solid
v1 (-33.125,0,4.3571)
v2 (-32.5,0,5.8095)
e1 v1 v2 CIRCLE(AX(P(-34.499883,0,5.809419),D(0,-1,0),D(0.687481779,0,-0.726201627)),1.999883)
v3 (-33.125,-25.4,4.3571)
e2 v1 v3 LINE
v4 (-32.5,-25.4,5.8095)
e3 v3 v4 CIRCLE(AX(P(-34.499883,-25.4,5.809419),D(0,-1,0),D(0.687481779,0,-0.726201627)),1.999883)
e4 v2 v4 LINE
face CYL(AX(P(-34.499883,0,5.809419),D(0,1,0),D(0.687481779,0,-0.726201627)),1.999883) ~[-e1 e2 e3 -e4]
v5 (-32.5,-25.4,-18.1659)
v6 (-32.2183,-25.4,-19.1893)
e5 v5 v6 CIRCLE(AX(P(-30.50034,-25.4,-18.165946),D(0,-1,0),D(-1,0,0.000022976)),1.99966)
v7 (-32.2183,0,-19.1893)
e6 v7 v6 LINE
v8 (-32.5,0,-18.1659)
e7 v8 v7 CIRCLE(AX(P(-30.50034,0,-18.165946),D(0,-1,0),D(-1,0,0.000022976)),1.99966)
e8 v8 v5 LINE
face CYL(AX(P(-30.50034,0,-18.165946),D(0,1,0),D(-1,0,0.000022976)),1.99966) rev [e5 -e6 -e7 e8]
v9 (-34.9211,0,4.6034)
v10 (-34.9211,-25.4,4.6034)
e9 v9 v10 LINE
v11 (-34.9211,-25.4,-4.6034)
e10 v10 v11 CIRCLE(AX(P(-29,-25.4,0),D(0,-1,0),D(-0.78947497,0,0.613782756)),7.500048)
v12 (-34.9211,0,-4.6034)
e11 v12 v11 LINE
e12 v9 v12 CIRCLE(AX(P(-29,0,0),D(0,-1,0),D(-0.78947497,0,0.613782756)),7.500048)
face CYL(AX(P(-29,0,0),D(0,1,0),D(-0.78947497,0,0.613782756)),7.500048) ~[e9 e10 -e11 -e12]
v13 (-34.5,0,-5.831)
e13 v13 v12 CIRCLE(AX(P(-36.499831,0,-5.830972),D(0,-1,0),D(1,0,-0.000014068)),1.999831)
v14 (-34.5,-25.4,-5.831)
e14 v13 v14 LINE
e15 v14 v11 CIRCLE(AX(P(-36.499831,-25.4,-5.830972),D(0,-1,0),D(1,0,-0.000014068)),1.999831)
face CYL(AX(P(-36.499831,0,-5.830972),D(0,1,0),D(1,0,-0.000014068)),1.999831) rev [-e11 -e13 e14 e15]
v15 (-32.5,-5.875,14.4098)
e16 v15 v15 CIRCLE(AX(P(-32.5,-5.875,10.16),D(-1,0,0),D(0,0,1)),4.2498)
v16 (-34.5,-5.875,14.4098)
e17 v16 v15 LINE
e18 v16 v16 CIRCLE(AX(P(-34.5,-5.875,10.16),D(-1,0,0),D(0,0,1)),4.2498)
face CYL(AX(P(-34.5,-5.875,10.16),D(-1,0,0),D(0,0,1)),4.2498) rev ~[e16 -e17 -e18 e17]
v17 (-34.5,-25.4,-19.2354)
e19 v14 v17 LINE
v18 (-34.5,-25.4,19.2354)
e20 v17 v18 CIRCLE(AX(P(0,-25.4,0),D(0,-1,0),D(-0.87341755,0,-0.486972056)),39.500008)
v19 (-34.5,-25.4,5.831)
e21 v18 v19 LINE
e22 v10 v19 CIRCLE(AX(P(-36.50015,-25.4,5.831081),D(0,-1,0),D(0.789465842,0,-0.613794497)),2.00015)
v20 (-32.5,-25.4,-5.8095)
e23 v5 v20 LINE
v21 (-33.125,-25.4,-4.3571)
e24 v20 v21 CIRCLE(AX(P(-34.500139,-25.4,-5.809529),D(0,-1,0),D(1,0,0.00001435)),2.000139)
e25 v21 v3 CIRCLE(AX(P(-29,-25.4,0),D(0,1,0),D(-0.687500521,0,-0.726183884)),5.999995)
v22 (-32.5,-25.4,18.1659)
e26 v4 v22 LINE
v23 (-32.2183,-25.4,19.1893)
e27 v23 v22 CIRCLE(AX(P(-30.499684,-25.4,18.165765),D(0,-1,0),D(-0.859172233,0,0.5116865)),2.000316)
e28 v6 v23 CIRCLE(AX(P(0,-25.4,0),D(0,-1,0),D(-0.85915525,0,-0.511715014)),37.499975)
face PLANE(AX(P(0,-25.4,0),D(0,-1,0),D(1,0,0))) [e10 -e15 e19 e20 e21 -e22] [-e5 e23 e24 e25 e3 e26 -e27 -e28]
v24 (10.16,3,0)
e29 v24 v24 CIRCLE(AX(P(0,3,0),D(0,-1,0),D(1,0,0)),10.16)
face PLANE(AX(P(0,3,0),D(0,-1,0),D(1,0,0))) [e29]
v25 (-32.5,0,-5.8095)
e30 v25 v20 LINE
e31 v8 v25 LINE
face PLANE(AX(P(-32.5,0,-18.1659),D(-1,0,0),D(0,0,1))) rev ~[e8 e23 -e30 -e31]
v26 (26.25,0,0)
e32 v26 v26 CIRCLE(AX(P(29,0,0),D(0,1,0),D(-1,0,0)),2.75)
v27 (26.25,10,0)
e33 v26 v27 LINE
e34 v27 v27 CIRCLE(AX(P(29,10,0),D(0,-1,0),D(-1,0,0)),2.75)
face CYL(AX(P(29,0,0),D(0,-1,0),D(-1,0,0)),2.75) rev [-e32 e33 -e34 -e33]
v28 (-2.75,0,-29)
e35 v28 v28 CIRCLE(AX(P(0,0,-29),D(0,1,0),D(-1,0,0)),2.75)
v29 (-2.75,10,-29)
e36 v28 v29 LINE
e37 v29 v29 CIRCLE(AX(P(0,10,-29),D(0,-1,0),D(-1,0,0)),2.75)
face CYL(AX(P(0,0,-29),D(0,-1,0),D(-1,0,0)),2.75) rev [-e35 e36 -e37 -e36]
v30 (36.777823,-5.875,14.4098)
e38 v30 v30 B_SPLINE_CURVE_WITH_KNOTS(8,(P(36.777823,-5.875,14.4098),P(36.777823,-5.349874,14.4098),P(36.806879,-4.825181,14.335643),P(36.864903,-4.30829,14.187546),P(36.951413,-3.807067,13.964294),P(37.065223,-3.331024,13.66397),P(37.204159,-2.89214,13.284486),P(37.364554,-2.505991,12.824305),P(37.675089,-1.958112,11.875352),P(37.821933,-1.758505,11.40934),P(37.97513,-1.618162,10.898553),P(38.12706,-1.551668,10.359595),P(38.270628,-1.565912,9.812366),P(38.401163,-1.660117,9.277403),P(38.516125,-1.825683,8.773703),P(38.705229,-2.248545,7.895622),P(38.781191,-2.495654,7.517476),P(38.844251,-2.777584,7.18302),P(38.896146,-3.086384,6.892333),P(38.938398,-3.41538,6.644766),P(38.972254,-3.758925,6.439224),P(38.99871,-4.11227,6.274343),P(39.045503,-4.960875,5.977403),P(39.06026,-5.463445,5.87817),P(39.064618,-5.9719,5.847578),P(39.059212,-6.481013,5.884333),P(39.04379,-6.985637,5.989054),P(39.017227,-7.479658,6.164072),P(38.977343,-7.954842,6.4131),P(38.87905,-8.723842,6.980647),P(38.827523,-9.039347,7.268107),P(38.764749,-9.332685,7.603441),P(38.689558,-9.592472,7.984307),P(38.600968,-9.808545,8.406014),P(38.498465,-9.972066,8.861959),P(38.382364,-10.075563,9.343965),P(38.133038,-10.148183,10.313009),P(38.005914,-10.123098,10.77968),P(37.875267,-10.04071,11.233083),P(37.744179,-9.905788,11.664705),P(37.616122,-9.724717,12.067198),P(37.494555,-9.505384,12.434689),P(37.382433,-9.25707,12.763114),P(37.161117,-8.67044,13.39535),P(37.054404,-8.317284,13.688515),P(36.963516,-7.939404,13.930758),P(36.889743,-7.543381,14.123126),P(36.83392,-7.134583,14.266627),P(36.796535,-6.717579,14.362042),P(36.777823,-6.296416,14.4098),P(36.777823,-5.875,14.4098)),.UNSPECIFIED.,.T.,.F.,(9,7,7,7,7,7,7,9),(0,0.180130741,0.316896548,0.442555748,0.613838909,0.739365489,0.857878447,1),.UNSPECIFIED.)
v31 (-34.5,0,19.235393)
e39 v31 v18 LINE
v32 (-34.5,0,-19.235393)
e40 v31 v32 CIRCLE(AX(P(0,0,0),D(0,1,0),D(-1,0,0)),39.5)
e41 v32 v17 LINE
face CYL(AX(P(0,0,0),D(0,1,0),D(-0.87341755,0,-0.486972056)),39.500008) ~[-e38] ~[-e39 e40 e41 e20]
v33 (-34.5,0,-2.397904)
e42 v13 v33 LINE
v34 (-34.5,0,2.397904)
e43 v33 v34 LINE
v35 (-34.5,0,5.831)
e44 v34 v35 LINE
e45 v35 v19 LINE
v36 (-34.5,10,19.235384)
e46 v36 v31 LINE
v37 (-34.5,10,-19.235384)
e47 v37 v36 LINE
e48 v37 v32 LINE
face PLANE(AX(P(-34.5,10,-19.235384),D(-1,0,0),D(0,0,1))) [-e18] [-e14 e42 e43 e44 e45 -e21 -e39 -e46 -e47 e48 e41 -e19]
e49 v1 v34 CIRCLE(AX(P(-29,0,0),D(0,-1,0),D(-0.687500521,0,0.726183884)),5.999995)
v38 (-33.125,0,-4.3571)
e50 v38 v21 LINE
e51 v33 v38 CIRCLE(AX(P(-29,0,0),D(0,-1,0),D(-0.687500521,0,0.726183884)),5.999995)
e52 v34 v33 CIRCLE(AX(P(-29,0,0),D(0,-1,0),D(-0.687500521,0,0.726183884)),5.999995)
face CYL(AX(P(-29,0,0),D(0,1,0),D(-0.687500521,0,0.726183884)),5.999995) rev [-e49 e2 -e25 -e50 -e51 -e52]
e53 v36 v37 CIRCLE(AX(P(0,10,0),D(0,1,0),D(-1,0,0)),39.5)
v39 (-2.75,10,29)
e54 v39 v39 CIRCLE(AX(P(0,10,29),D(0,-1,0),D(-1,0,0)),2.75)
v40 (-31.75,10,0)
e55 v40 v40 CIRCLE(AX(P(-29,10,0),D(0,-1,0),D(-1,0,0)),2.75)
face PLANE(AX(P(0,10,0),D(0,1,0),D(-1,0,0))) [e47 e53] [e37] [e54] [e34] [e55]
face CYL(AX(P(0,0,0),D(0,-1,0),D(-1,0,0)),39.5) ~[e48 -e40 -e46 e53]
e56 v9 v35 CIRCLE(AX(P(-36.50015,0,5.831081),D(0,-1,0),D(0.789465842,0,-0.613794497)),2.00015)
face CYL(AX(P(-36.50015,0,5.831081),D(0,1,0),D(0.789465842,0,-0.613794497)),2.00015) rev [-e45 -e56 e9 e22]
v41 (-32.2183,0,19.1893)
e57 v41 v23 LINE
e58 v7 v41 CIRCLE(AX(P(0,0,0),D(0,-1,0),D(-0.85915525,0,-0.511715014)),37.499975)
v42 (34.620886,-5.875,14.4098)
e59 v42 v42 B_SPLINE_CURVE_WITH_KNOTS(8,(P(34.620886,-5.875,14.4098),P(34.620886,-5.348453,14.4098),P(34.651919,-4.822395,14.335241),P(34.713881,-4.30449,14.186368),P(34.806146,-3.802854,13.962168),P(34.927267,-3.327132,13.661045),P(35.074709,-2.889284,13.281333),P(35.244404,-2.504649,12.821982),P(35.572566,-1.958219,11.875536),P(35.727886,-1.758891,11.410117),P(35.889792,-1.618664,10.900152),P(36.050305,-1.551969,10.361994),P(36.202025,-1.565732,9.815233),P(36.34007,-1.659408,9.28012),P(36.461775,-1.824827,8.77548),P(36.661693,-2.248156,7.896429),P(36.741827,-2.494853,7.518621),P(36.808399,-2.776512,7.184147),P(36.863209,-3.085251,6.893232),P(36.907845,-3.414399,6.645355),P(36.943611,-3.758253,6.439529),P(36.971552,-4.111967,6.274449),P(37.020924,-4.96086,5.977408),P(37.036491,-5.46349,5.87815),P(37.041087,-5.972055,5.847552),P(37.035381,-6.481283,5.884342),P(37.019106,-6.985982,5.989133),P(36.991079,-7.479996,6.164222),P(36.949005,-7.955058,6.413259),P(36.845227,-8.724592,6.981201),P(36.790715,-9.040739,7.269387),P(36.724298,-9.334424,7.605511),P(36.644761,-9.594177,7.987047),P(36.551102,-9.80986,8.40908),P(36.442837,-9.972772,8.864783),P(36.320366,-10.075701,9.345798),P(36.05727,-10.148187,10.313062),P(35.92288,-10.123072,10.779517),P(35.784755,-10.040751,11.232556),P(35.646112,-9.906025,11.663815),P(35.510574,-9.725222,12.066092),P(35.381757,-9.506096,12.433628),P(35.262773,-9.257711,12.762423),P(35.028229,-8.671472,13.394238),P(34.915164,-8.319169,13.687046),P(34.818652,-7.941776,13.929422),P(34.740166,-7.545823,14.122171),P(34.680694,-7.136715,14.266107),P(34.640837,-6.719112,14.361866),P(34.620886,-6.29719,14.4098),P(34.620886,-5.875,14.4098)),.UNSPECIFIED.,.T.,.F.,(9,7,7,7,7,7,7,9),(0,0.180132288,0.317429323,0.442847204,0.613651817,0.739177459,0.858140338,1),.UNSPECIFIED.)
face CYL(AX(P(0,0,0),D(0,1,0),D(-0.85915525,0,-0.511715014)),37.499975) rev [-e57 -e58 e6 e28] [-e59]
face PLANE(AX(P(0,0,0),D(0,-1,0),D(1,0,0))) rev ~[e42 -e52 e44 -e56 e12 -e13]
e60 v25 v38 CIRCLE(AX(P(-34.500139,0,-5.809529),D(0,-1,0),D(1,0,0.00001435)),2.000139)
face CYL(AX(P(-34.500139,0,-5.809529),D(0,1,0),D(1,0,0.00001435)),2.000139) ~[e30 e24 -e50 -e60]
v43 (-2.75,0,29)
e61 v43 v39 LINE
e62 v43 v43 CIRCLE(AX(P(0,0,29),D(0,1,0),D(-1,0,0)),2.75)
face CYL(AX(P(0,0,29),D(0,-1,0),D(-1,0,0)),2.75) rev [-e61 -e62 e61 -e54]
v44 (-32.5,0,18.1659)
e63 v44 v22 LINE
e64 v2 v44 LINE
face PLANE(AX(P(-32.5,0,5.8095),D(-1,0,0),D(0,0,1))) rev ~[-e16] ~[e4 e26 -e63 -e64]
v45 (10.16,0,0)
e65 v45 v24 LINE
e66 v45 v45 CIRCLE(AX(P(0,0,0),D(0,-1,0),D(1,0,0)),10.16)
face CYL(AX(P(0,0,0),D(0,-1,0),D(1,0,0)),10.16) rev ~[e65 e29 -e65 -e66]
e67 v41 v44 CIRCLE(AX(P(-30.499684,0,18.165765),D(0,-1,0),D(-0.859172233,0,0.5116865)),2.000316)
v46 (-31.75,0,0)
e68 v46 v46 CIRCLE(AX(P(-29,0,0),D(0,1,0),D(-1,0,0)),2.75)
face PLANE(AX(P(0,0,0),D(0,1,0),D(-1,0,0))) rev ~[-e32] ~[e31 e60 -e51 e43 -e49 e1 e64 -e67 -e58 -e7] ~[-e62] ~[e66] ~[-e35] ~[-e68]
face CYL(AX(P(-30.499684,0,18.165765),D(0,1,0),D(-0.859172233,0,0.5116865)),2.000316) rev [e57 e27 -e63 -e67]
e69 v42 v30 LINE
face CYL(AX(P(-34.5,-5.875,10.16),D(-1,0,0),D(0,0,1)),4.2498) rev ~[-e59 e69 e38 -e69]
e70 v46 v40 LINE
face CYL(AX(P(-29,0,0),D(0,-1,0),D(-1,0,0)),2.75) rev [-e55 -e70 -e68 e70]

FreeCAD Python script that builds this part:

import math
import FreeCAD as App
import Part
import Sketcher
from FreeCAD import Vector
Q = App.Units.Quantity

doc = App.newDocument("Part")
body = doc.addObject("PartDesign::Body", "Body")

# Sketch on XZ plane
sketch1 = body.newObject("Sketcher::SketchObject", "Sketch")
sketch1.AttachmentSupport = (doc.getObject("XZ_Plane"), [""])
sketch1.MapMode = "FlatFace"
sketch1.addGeometry(Part.Circle(Vector(0, 0, 0), Vector(0, 0, 1), 39.5), False)
sketch1.addGeometry(Part.Circle(Vector(0, 29, 0), Vector(0, 0, 1), 2.8), False)
sketch1.addGeometry(Part.Circle(Vector(29, 0, 0), Vector(0, 0, 1), 2.8), False)
sketch1.addGeometry(Part.Circle(Vector(0, -29, 0), Vector(0, 0, 1), 2.8), False)
sketch1.addGeometry(Part.Circle(Vector(-29, 0, 0), Vector(0, 0, 1), 2.8), False)
sketch1.addConstraint(Sketcher.Constraint("Coincident", 0, 3, -1, 1))
sketch1.addConstraint(Sketcher.Constraint("Equal", 1, 2))
sketch1.addConstraint(Sketcher.Constraint("Equal", 2, 3))
sketch1.addConstraint(Sketcher.Constraint("Equal", 3, 4))
sketch1.addConstraint(Sketcher.Constraint("Symmetric", 1, 3, 3, 3, -1, 1))
sketch1.addConstraint(Sketcher.Constraint("Symmetric", 2, 3, 4, 3, -1, 1))
sketch1.addConstraint(Sketcher.Constraint("PointOnObject", 1, 3, -2))
sketch1.addConstraint(Sketcher.Constraint("PointOnObject", 2, 3, -1))
sketch1.addConstraint(Sketcher.Constraint("Diameter", 0, Q("79 mm")))
sketch1.addConstraint(Sketcher.Constraint("Diameter", 1, Q("5.5 mm")))
sketch1.addConstraint(Sketcher.Constraint("DistanceY", 3, 3, 1, 3, Q("58 mm")))
sketch1.addConstraint(Sketcher.Constraint("DistanceX", 4, 3, 2, 3, Q("58 mm")))
pad1 = body.newObject("PartDesign::Pad", "Pad")
pad1.Profile = sketch1
pad1.Length = 10
pad1.Reversed = True

# Sketch on XZ plane
sketch2 = body.newObject("Sketcher::SketchObject", "Sketch001")
sketch2.AttachmentSupport = (doc.getObject("XZ_Plane"), [""])
sketch2.MapMode = "FlatFace"
sketch2.AttachmentOffset = App.Placement(Vector(0, 0, -10), App.Rotation())
sketch2.addGeometry(Part.LineSegment(Vector(-34, 19, 0), Vector(-34, -19, 0)), False)
sketch2.addGeometry(Part.ArcOfCircle(Part.Circle(Vector(0, 0, 0), Vector(0, 0, 1), 40), math.radians(151), math.radians(209)), False)
sketch2.addConstraint(Sketcher.Constraint("Coincident", 0, 1, 1, 1))
sketch2.addConstraint(Sketcher.Constraint("Coincident", 1, 2, 0, 2))
sketch2.addConstraint(Sketcher.Constraint("Vertical", 0))
sketch2.addConstraint(Sketcher.Constraint("Coincident", 1, 3, -1, 1))
sketch2.addConstraint(Sketcher.Constraint("Radius", 1, Q("39.5 mm")))
sketch2.addConstraint(Sketcher.Constraint("DistanceX", 0, 1, -1, 1, Q("34.5 mm")))
pocket1 = body.newObject("PartDesign::Pocket", "Pocket")
pocket1.Profile = sketch2
pocket1.Type = "ThroughAll"
pocket1.Midplane = True

# Sketch on XZ plane
sketch3 = body.newObject("Sketcher::SketchObject", "Sketch002")
sketch3.AttachmentSupport = (doc.getObject("XZ_Plane"), [""])
sketch3.MapMode = "FlatFace"
sketch3.addGeometry(Part.Circle(Vector(0, 0, 0), Vector(0, 0, 1), 10), False)
sketch3.addConstraint(Sketcher.Constraint("Coincident", 0, 3, -1, 1))
sketch3.addConstraint(Sketcher.Constraint("Diameter", 0, Q("20.32 mm")))
pocket2 = body.newObject("PartDesign::Pocket", "Pocket001")
pocket2.Profile = sketch3
pocket2.Length = 3

# Sketch on XZ plane
sketch4 = body.newObject("Sketcher::SketchObject", "Sketch003")
sketch4.AttachmentSupport = (doc.getObject("XZ_Plane"), [""])
sketch4.MapMode = "FlatFace"
sketch4.addGeometry(Part.LineSegment(Vector(-34.5, -5.8, 0), Vector(-34.5, -19.2, 0)), False)
sketch4.addGeometry(Part.ArcOfCircle(Part.Circle(Vector(0, 0, 0), Vector(0, 0, 1), 39.5), math.radians(-151), math.radians(151)), False)
sketch4.addGeometry(Part.LineSegment(Vector(-34.5, 19.2, 0), Vector(-34.5, 5.8, 0)), False)
sketch4.addGeometry(Part.ArcOfCircle(Part.Circle(Vector(-36.5, 5.8, 0), Vector(0, 0, 1), 2), math.radians(-38), math.radians(0)), False)
sketch4.addGeometry(Part.ArcOfCircle(Part.Circle(Vector(-29, 0, 0), Vector(0, 0, 1), 7.5), math.radians(142), math.radians(218)), False)
sketch4.addGeometry(Part.ArcOfCircle(Part.Circle(Vector(-36.5, -5.8, 0), Vector(0, 0, 1), 2), math.radians(0), math.radians(38)), False)
sketch4.addGeometry(Part.ArcOfCircle(Part.Circle(Vector(-29, 0, 0), Vector(0, 0, 1), 6), math.radians(133), math.radians(227)), False)
sketch4.addGeometry(Part.ArcOfCircle(Part.Circle(Vector(-34.5, 5.8, 0), Vector(0, 0, 1), 2), math.radians(-47), math.radians(0)), False)
sketch4.addGeometry(Part.LineSegment(Vector(-32.5, 5.8, 0), Vector(-32.5, 18.2, 0)), False)
sketch4.addGeometry(Part.ArcOfCircle(Part.Circle(Vector(-30.5, 18.2, 0), Vector(0, 0, 1), 2), math.radians(149), math.radians(180)), False)
sketch4.addGeometry(Part.ArcOfCircle(Part.Circle(Vector(0, 0, 0), Vector(0, 0, 1), 37.5), math.radians(-149), math.radians(149)), False)
sketch4.addGeometry(Part.ArcOfCircle(Part.Circle(Vector(-30.5, -18.2, 0), Vector(0, 0, 1), 2), math.radians(180), math.radians(211)), False)
sketch4.addGeometry(Part.LineSegment(Vector(-32.5, -18.2, 0), Vector(-32.5, -5.8, 0)), False)
sketch4.addGeometry(Part.ArcOfCircle(Part.Circle(Vector(-34.5, -5.8, 0), Vector(0, 0, 1), 2), math.radians(0), math.radians(47)), False)
sketch4.addConstraint(Sketcher.Constraint("Coincident", 0, 2, 1, 1))
sketch4.addConstraint(Sketcher.Constraint("Coincident", 1, 2, 2, 1))
sketch4.addConstraint(Sketcher.Constraint("Tangent", 2, 2, 3, 2))
sketch4.addConstraint(Sketcher.Constraint("Tangent", 3, 1, 4, 1))
sketch4.addConstraint(Sketcher.Constraint("Tangent", 4, 2, 5, 2))
sketch4.addConstraint(Sketcher.Constraint("Tangent", 5, 1, 0, 1))
sketch4.addConstraint(Sketcher.Constraint("Tangent", 6, 1, 7, 1))
sketch4.addConstraint(Sketcher.Constraint("Tangent", 7, 2, 8, 1))
sketch4.addConstraint(Sketcher.Constraint("Tangent", 8, 2, 9, 2))
sketch4.addConstraint(Sketcher.Constraint("Tangent", 9, 1, 10, 2))
sketch4.addConstraint(Sketcher.Constraint("Tangent", 10, 1, 11, 2))
sketch4.addConstraint(Sketcher.Constraint("Tangent", 11, 1, 12, 1))
sketch4.addConstraint(Sketcher.Constraint("Tangent", 12, 2, 13, 1))
sketch4.addConstraint(Sketcher.Constraint("Tangent", 13, 2, 6, 2))
sketch4.addConstraint(Sketcher.Constraint("Vertical", 0))
sketch4.addConstraint(Sketcher.Constraint("Vertical", 2))
sketch4.addConstraint(Sketcher.Constraint("Vertical", 8))
sketch4.addConstraint(Sketcher.Constraint("Vertical", 12))
sketch4.addConstraint(Sketcher.Constraint("Coincident", 1, 3, -1, 1))
sketch4.addConstraint(Sketcher.Constraint("Coincident", 10, 3, -1, 1))
sketch4.addConstraint(Sketcher.Constraint("Coincident", 6, 3, 4, 3))
sketch4.addConstraint(Sketcher.Constraint("Equal", 3, 5))
sketch4.addConstraint(Sketcher.Constraint("Equal", 5, 7))
sketch4.addConstraint(Sketcher.Constraint("Equal", 7, 9))
sketch4.addConstraint(Sketcher.Constraint("Equal", 9, 11))
sketch4.addConstraint(Sketcher.Constraint("Equal", 11, 13))
sketch4.addConstraint(Sketcher.Constraint("Symmetric", 3, 3, 5, 3, -1))
sketch4.addConstraint(Sketcher.Constraint("Vertical", 9, 3, 11, 3))
sketch4.addConstraint(Sketcher.Constraint("Vertical", 13, 3, 0, 2))
sketch4.addConstraint(Sketcher.Constraint("Radius", 3, Q("2 mm")))
sketch4.addConstraint(Sketcher.Constraint("Radius", 4, Q("7.5 mm")))
sketch4.addConstraint(Sketcher.Constraint("Radius", 6, Q("6 mm")))
sketch4.addConstraint(Sketcher.Constraint("Radius", 1, Q("39.5 mm")))
sketch4.addConstraint(Sketcher.Constraint("Radius", 10, Q("37.5 mm")))
sketch4.addConstraint(Sketcher.Constraint("DistanceX", 3, 3, 4, 3, Q("7.5 mm")))
sketch4.addConstraint(Sketcher.Constraint("DistanceX", 4, 3, -1, 1, Q("29 mm")))
pad2 = body.newObject("PartDesign::Pad", "Pad001")
pad2.Profile = sketch4
pad2.Length = 25.4

# Sketch on YZ plane
sketch5 = body.newObject("Sketcher::SketchObject", "Sketch004")
sketch5.AttachmentSupport = (doc.getObject("YZ_Plane"), [""])
sketch5.MapMode = "FlatFace"
sketch5.AttachmentOffset = App.Placement(Vector(0, 0, -34.5), App.Rotation())
sketch5.addGeometry(Part.Circle(Vector(-5.9, 10.2, 0), Vector(0, 0, 1), 4.2), False)
sketch5.addConstraint(Sketcher.Constraint("Diameter", 0, Q("8.4996 mm")))
sketch5.addConstraint(Sketcher.Constraint("DistanceY", -1, 1, 0, 3, Q("10.16 mm")))
sketch5.addConstraint(Sketcher.Constraint("DistanceX", 0, 3, -1, 1, Q("5.875 mm")))
pocket3 = body.newObject("PartDesign::Pocket", "Pocket002")
pocket3.Profile = sketch5
pocket3.Type = "ThroughAll"
pocket3.Reversed = True

doc.recompute()
